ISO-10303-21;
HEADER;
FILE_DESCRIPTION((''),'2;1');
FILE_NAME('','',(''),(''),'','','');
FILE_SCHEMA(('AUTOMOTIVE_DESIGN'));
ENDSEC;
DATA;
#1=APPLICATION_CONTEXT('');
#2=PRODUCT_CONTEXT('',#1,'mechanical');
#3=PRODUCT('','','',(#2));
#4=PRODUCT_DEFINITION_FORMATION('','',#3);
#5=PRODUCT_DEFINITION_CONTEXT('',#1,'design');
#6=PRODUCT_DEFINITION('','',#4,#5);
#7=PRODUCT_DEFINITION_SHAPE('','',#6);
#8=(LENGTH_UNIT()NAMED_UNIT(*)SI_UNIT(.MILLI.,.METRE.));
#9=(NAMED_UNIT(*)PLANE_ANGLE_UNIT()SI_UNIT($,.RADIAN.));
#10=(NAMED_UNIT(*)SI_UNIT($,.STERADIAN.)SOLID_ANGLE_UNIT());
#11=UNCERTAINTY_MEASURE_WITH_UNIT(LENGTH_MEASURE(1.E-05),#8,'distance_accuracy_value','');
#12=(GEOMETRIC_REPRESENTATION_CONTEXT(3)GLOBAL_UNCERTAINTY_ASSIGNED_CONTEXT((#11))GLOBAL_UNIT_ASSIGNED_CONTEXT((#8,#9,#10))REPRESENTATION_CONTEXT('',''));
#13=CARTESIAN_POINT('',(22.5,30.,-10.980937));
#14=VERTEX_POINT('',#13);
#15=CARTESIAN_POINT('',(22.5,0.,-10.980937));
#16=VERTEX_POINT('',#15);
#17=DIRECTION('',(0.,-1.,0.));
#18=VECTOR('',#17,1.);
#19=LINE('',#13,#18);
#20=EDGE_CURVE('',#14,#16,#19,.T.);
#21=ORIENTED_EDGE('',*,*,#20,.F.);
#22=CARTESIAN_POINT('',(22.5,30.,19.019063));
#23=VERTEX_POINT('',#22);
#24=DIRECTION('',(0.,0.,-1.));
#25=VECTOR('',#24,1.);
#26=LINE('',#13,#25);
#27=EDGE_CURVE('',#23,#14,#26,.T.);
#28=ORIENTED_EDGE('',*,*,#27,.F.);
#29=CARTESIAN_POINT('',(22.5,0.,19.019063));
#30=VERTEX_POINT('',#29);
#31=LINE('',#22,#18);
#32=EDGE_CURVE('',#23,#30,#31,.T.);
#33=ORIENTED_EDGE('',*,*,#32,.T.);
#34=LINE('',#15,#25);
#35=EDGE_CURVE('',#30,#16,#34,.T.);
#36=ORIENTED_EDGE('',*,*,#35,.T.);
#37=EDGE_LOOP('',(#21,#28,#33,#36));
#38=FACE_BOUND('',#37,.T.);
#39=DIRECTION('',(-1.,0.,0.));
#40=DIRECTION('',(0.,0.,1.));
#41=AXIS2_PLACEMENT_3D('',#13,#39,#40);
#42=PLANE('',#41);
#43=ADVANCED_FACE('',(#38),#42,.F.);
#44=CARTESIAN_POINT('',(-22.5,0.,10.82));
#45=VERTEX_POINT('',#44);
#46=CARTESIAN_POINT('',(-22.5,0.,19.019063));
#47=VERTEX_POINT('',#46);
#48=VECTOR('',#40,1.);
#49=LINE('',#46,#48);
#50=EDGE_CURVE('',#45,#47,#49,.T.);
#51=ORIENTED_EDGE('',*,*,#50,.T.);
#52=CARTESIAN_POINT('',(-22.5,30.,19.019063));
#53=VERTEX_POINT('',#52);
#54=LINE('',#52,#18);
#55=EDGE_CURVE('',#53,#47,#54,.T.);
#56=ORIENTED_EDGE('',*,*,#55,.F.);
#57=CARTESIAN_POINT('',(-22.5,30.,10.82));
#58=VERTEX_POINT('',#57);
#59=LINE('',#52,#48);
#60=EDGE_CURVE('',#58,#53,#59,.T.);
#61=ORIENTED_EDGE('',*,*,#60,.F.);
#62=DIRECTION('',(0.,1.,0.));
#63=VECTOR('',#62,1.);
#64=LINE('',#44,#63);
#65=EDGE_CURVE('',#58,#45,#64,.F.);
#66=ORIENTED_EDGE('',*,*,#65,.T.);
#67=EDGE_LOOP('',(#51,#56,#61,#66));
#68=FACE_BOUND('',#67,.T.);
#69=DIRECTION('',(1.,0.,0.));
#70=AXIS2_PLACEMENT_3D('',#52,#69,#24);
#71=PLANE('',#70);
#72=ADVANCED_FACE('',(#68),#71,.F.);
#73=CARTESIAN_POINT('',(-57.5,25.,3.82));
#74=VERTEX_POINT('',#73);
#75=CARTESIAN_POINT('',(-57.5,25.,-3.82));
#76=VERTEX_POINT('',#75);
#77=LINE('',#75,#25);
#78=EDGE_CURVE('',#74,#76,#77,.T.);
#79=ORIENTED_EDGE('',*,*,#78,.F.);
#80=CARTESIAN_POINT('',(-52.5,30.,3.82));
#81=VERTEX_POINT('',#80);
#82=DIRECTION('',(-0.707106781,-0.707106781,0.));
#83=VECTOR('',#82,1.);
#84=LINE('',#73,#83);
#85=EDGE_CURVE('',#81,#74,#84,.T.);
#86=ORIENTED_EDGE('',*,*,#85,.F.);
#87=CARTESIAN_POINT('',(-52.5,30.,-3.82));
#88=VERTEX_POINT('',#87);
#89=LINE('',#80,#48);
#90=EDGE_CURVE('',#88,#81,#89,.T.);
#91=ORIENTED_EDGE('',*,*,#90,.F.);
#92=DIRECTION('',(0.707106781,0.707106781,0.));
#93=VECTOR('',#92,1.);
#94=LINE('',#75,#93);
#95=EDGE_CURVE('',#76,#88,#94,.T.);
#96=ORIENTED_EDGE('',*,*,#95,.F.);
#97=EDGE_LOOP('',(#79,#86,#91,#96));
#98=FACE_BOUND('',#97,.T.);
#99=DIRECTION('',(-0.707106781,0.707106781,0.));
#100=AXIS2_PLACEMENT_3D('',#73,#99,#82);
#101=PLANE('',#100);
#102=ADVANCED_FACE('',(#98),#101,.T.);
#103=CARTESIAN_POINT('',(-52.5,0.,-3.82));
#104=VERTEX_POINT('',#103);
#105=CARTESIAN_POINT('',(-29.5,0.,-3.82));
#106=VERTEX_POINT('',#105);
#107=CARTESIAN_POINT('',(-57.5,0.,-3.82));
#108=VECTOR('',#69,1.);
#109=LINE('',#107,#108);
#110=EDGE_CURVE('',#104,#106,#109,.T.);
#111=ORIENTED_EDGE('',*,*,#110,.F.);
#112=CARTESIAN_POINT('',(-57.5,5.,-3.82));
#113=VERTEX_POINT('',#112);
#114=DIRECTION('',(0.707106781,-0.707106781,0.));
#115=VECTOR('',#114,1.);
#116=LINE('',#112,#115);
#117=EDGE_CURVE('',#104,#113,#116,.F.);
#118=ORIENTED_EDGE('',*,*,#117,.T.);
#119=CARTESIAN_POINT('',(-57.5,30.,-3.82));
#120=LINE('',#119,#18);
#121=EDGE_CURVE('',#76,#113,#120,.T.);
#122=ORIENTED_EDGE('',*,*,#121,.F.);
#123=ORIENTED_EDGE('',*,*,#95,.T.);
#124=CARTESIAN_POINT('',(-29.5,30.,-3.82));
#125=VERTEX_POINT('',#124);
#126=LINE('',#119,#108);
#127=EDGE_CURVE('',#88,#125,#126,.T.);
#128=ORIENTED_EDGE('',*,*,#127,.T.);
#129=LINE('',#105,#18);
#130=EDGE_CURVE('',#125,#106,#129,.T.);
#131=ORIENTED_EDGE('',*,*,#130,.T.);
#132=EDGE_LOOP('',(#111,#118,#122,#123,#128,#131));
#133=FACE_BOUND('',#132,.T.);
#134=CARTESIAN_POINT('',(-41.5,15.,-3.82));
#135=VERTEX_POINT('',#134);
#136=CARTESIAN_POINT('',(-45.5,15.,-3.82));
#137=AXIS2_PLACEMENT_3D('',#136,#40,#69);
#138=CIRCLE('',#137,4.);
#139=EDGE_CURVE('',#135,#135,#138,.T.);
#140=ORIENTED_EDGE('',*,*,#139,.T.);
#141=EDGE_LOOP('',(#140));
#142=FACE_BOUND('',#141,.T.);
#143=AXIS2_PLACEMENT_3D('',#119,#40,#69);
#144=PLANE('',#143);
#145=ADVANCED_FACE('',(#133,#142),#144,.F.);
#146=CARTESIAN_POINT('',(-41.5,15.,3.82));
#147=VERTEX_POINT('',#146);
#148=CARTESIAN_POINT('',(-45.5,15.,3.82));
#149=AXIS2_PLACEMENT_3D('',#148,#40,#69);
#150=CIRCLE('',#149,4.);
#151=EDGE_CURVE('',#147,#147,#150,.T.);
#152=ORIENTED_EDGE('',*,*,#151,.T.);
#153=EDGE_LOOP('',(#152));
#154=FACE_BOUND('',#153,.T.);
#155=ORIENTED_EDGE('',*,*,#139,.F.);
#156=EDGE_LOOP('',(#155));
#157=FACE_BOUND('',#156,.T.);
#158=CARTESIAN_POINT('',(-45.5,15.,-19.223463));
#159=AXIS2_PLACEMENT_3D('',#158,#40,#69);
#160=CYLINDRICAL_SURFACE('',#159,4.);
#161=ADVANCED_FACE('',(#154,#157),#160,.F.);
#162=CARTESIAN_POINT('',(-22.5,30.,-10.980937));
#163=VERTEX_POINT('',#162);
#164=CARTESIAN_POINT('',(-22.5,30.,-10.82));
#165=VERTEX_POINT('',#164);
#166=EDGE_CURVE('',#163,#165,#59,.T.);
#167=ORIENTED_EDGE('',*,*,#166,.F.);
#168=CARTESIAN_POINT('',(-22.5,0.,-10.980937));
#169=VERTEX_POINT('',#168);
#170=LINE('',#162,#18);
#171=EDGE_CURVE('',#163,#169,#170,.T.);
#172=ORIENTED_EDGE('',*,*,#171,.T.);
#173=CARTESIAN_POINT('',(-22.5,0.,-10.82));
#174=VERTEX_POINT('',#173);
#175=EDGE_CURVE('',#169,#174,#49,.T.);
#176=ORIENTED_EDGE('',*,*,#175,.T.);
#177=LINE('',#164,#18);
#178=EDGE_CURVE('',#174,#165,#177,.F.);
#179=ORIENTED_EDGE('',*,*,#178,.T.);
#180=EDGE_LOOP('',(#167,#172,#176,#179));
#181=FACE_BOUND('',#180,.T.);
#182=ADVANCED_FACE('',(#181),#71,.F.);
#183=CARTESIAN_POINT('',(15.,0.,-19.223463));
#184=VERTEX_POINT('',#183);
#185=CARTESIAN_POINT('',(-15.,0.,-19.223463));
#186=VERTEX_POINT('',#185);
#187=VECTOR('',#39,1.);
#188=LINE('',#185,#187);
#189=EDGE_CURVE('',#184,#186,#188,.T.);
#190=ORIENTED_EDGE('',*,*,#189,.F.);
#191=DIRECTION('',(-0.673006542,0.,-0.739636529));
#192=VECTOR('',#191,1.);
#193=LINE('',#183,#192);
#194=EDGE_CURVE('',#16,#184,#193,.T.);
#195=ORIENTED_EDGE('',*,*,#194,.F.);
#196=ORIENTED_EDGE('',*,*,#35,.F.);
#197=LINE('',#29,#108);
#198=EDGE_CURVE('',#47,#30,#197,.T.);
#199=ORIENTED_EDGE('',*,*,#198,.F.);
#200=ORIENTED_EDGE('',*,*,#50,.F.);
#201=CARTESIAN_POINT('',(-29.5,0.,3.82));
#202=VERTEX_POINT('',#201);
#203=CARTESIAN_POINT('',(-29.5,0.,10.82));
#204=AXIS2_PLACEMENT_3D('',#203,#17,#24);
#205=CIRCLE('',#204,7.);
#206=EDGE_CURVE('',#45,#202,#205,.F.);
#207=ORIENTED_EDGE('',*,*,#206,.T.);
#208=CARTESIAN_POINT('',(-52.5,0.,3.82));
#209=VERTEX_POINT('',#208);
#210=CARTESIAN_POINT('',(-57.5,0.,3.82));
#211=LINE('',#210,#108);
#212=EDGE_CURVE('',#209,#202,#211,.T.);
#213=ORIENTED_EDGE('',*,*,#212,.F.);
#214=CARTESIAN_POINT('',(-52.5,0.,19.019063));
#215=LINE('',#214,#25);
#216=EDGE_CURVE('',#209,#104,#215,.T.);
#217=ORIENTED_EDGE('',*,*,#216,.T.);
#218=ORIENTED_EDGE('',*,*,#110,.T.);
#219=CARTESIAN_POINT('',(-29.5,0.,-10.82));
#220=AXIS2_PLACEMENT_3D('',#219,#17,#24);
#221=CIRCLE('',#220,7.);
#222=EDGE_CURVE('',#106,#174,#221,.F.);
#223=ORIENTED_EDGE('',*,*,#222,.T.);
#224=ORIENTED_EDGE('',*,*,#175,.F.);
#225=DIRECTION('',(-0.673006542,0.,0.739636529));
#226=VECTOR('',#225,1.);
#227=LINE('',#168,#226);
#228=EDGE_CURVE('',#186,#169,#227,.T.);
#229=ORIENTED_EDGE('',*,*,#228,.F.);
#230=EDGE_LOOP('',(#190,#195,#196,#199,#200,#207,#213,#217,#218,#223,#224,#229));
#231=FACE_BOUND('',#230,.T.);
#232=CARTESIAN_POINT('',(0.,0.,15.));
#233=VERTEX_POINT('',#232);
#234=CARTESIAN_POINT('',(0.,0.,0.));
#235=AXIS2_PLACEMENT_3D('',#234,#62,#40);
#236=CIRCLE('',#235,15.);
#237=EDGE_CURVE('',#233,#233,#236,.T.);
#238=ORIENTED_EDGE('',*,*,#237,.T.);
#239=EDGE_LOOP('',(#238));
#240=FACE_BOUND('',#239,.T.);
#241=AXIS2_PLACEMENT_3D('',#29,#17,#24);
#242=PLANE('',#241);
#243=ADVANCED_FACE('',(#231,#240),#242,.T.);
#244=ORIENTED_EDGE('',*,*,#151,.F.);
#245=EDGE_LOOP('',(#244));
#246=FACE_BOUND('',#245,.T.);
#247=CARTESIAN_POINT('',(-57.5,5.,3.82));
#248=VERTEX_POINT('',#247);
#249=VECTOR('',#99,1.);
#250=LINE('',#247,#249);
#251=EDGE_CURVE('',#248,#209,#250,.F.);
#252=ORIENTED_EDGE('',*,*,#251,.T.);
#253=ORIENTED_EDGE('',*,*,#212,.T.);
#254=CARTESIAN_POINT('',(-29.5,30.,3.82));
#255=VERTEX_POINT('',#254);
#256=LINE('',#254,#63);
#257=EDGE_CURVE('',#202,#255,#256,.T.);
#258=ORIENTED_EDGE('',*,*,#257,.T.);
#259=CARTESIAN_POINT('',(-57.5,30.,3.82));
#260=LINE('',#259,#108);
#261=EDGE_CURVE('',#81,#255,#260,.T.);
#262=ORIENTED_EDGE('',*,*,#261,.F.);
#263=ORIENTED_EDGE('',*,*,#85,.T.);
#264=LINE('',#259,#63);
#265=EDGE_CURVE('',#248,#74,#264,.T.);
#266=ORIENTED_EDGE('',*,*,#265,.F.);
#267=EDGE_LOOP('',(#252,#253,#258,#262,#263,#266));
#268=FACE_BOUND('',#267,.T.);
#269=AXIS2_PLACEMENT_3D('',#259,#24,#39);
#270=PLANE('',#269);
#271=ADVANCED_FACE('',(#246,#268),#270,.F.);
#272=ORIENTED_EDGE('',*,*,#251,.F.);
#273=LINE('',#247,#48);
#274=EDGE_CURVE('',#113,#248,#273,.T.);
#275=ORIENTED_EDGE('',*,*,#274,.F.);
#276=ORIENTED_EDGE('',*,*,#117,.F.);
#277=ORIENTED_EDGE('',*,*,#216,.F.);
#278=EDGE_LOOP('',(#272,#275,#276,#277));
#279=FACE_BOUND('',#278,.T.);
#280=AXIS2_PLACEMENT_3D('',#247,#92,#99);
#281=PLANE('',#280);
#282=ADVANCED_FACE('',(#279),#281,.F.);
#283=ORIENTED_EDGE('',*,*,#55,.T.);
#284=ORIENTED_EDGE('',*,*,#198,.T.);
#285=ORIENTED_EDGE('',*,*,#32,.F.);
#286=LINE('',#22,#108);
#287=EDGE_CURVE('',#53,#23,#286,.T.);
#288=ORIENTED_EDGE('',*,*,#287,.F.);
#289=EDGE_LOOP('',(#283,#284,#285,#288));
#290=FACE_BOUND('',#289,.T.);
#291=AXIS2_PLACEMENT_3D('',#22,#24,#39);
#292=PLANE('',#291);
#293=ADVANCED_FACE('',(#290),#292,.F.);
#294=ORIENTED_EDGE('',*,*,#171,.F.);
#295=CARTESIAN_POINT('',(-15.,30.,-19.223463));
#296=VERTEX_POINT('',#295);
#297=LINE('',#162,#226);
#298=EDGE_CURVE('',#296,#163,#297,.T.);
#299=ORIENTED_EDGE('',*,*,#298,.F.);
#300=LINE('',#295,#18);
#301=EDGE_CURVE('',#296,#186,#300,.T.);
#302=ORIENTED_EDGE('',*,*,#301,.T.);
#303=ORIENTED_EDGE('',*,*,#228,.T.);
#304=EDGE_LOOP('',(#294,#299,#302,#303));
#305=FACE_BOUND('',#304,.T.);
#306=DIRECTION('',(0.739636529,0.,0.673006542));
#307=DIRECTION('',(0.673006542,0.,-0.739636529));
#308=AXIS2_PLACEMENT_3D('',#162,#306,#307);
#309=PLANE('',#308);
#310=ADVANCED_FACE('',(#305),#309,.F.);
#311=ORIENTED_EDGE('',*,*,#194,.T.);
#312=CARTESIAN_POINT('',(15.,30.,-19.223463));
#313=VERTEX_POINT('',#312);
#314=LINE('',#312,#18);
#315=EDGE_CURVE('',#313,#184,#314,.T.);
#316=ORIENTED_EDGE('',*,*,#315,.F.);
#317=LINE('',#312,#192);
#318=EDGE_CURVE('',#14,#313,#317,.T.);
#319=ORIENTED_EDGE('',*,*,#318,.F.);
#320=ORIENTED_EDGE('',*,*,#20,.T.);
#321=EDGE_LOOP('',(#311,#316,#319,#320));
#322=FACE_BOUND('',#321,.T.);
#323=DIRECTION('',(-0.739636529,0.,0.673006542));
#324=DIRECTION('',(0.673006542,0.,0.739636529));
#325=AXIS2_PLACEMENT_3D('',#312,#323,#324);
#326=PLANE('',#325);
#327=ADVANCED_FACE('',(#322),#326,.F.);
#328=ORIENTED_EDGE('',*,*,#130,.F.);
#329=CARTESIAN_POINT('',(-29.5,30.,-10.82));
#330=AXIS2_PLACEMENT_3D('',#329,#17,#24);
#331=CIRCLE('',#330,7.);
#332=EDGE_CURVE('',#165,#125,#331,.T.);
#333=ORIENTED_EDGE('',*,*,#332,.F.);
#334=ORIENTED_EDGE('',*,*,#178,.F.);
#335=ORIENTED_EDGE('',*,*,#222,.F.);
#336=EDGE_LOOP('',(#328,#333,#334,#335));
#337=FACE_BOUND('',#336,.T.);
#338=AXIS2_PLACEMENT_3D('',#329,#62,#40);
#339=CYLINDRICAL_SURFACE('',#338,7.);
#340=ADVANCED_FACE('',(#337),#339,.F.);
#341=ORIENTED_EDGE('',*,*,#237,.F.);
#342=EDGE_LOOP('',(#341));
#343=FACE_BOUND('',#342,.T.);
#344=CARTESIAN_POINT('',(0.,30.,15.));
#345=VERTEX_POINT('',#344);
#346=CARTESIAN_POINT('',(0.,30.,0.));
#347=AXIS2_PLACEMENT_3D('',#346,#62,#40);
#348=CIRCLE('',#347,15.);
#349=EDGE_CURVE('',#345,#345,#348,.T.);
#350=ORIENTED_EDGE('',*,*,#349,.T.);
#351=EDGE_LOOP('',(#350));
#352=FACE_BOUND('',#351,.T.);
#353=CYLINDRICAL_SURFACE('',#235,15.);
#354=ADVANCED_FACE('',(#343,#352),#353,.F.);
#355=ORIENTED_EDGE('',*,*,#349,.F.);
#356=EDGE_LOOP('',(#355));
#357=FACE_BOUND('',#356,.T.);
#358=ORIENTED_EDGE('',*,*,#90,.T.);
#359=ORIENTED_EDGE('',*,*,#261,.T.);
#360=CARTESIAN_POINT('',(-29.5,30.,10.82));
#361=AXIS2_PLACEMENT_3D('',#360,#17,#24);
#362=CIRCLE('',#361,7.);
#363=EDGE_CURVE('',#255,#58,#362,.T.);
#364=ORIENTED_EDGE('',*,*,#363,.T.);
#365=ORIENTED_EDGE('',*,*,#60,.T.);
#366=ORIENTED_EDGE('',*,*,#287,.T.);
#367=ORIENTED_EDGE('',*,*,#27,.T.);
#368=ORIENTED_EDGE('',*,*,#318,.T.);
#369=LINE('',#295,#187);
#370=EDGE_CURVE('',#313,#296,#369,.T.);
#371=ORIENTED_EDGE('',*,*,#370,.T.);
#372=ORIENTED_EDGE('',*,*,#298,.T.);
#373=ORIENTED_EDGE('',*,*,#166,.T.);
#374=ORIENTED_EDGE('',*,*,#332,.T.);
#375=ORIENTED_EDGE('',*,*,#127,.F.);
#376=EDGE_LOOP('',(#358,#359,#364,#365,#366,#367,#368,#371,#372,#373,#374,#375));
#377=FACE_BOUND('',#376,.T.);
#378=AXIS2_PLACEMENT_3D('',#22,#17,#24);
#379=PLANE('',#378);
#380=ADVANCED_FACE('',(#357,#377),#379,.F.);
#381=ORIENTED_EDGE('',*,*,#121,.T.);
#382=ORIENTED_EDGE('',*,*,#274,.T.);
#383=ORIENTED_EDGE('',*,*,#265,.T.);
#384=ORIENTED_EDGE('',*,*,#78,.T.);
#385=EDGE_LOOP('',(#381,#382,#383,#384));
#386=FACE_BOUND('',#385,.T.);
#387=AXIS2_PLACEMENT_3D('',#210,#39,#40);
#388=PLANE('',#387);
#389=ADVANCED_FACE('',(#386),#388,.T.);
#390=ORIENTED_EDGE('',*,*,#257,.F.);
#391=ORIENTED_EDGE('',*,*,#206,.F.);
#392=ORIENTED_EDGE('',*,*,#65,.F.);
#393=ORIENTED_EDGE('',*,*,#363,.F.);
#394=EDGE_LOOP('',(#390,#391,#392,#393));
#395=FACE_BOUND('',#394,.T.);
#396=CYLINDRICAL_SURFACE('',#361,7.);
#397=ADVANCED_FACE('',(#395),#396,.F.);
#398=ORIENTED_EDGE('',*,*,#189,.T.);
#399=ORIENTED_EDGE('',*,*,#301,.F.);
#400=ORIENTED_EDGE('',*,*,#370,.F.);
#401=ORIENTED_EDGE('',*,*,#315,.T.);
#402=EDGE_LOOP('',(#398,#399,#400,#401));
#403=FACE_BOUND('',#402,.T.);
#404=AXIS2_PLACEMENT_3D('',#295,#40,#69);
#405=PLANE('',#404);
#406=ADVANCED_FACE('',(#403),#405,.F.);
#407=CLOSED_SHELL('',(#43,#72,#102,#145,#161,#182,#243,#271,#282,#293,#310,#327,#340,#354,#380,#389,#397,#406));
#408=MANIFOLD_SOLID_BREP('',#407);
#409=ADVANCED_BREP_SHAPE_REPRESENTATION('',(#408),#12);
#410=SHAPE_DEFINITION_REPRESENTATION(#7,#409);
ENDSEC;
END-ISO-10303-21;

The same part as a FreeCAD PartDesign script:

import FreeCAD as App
import Part
import Sketcher
from FreeCAD import Vector
Q = App.Units.Quantity


def edges_at(feature, points):
    """Names of the edges that pass closest to the given points."""
    edges = feature.Shape.Edges
    near = lambda p: min(range(len(edges)), key=lambda i: edges[i].distToShape(Part.Vertex(*p))[0])
    return sorted({f"Edge{near(p) + 1}" for p in points})

doc = App.newDocument("Part")
body = doc.addObject("PartDesign::Body", "Body")

# Sketch on XZ plane
sketch1 = body.newObject("Sketcher::SketchObject", "Sketch")
sketch1.AttachmentSupport = (doc.getObject("XZ_Plane"), [""])
sketch1.MapMode = "FlatFace"
sketch1.addGeometry([
    Part.LineSegment(Vector(-22.5, 19.019063, 0), Vector(22.5, 19.019063, 0)),  # 0
    Part.LineSegment(Vector(22.5, 19.019063, 0), Vector(22.5, -10.980937, 0)),  # 1
    Part.LineSegment(Vector(22.5, -10.980937, 0), Vector(15, -19.223463, 0)),  # 2
    Part.LineSegment(Vector(15, -19.223463, 0), Vector(-15, -19.223463, 0)),  # 3
    Part.LineSegment(Vector(-15, -19.223463, 0), Vector(-22.5, -10.980937, 0)),  # 4
    Part.LineSegment(Vector(-22.5, -10.980937, 0), Vector(-22.5, 19.019063, 0)),  # 5
], False)
sketch1.addConstraint([
    Sketcher.Constraint("Coincident", 0, 2, 1, 1),
    Sketcher.Constraint("Coincident", 1, 2, 2, 1),
    Sketcher.Constraint("Coincident", 2, 2, 3, 1),
    Sketcher.Constraint("Coincident", 3, 2, 4, 1),
    Sketcher.Constraint("Coincident", 4, 2, 5, 1),
    Sketcher.Constraint("Coincident", 5, 2, 0, 1),
    Sketcher.Constraint("Horizontal", 0),
    Sketcher.Constraint("Vertical", 1),
    Sketcher.Constraint("Horizontal", 3),
    Sketcher.Constraint("Vertical", 5),
    Sketcher.Constraint("Symmetric", 1, 2, 4, 2, -2),
    Sketcher.Constraint("Equal", 3, 1),
    Sketcher.Constraint("Equal", 2, 4),
    Sketcher.Constraint("DistanceX", 0, 1, 0, 2, Q("45 mm")),
    Sketcher.Constraint("DistanceX", 3, 2, 3, 1, Q("30 mm")),
    Sketcher.Constraint("Distance", 2, Q("11.144022 mm")),
    Sketcher.Constraint("DistanceY", -1, 1, 0, 2, Q("19.019063 mm")),
])
pad1 = body.newObject("PartDesign::Pad", "Pad")
pad1.Profile = sketch1
pad1.Length = 30
pad1.Reversed = True

# Sketch on XZ plane
sketch2 = body.newObject("Sketcher::SketchObject", "Sketch001")
sketch2.AttachmentSupport = (doc.getObject("XZ_Plane"), [""])
sketch2.MapMode = "FlatFace"
sketch2.AttachmentOffset = App.Placement(Vector(0, 0, -30), App.Rotation())
sketch2.addGeometry(Part.Circle(Vector(0, 0, 0), Vector(0, 0, 1), 15), False)
sketch2.addConstraint([
    Sketcher.Constraint("Coincident", 0, 3, -1, 1),
    Sketcher.Constraint("Diameter", 0, Q("30 mm")),
])
pocket1 = body.newObject("PartDesign::Pocket", "Pocket")
pocket1.Profile = sketch2
pocket1.Type = "ThroughAll"
pocket1.Reversed = True

# Sketch on YZ plane
sketch3 = body.newObject("Sketcher::SketchObject", "Sketch002")
sketch3.AttachmentSupport = (doc.getObject("YZ_Plane"), [""])
sketch3.MapMode = "FlatFace"
sketch3.AttachmentOffset = App.Placement(Vector(0, 0, -22.5), App.Rotation())
sketch3.addGeometry([
    Part.LineSegment(Vector(30, -3.82, 0), Vector(0, -3.82, 0)),
    Part.LineSegment(Vector(0, -3.82, 0), Vector(0, 3.82, 0)),
    Part.LineSegment(Vector(0, 3.82, 0), Vector(30, 3.82, 0)),
    Part.LineSegment(Vector(30, 3.82, 0), Vector(30, -3.82, 0)),
], False)
sketch3.addConstraint([
    Sketcher.Constraint("Coincident", 0, 2, 1, 1),
    Sketcher.Constraint("Coincident", 1, 2, 2, 1),
    Sketcher.Constraint("Coincident", 2, 2, 3, 1),
    Sketcher.Constraint("Coincident", 3, 2, 0, 1),
    Sketcher.Constraint("Horizontal", 0),
    Sketcher.Constraint("Vertical", 1),
    Sketcher.Constraint("Horizontal", 2),
    Sketcher.Constraint("Vertical", 3),
    Sketcher.Constraint("Symmetric", 0, 2, 1, 2, -1, 1),
    Sketcher.Constraint("DistanceX", 0, 2, 0, 1, Q("30 mm")),
    Sketcher.Constraint("DistanceY", 1, 1, 1, 2, Q("7.64 mm")),
])
pad2 = body.newObject("PartDesign::Pad", "Pad001")
pad2.Profile = sketch3
pad2.Length = 35
pad2.Reversed = True
doc.recompute()

chamfer = body.newObject("PartDesign::Chamfer", "Chamfer")
chamfer.Base = (pad2, edges_at(pad2, [(-57.5, 0, 0), (-57.5, 30, 0)]))
chamfer.Size = 5

# Sketch on XY plane
sketch4 = body.newObject("Sketcher::SketchObject", "Sketch003")
sketch4.AttachmentSupport = (doc.getObject("XY_Plane"), [""])
sketch4.MapMode = "FlatFace"
sketch4.AttachmentOffset = App.Placement(Vector(0, 0, 3.82), App.Rotation())
sketch4.addGeometry(Part.Circle(Vector(-45.5, 15, 0), Vector(0, 0, 1), 4), False)
sketch4.addConstraint([
    Sketcher.Constraint("Diameter", 0, Q("8 mm")),
    Sketcher.Constraint("DistanceY", -1, 1, 0, 3, Q("15 mm")),
    Sketcher.Constraint("DistanceX", 0, 3, -1, 1, Q("45.5 mm")),
])
pocket2 = body.newObject("PartDesign::Pocket", "Pocket001")
pocket2.Profile = sketch4
pocket2.Type = "ThroughAll"
doc.recompute()

fillet = body.newObject("PartDesign::Fillet", "Fillet")
fillet.Base = (pocket2, edges_at(pocket2, [(-22.5, 15, -3.82)]))
fillet.Radius = 7
doc.recompute()

fillet2 = body.newObject("PartDesign::Fillet", "Fillet001")
fillet2.Base = (fillet, edges_at(fillet, [(-22.5, 15, 3.82)]))
fillet2.Radius = 7

doc.recompute()
